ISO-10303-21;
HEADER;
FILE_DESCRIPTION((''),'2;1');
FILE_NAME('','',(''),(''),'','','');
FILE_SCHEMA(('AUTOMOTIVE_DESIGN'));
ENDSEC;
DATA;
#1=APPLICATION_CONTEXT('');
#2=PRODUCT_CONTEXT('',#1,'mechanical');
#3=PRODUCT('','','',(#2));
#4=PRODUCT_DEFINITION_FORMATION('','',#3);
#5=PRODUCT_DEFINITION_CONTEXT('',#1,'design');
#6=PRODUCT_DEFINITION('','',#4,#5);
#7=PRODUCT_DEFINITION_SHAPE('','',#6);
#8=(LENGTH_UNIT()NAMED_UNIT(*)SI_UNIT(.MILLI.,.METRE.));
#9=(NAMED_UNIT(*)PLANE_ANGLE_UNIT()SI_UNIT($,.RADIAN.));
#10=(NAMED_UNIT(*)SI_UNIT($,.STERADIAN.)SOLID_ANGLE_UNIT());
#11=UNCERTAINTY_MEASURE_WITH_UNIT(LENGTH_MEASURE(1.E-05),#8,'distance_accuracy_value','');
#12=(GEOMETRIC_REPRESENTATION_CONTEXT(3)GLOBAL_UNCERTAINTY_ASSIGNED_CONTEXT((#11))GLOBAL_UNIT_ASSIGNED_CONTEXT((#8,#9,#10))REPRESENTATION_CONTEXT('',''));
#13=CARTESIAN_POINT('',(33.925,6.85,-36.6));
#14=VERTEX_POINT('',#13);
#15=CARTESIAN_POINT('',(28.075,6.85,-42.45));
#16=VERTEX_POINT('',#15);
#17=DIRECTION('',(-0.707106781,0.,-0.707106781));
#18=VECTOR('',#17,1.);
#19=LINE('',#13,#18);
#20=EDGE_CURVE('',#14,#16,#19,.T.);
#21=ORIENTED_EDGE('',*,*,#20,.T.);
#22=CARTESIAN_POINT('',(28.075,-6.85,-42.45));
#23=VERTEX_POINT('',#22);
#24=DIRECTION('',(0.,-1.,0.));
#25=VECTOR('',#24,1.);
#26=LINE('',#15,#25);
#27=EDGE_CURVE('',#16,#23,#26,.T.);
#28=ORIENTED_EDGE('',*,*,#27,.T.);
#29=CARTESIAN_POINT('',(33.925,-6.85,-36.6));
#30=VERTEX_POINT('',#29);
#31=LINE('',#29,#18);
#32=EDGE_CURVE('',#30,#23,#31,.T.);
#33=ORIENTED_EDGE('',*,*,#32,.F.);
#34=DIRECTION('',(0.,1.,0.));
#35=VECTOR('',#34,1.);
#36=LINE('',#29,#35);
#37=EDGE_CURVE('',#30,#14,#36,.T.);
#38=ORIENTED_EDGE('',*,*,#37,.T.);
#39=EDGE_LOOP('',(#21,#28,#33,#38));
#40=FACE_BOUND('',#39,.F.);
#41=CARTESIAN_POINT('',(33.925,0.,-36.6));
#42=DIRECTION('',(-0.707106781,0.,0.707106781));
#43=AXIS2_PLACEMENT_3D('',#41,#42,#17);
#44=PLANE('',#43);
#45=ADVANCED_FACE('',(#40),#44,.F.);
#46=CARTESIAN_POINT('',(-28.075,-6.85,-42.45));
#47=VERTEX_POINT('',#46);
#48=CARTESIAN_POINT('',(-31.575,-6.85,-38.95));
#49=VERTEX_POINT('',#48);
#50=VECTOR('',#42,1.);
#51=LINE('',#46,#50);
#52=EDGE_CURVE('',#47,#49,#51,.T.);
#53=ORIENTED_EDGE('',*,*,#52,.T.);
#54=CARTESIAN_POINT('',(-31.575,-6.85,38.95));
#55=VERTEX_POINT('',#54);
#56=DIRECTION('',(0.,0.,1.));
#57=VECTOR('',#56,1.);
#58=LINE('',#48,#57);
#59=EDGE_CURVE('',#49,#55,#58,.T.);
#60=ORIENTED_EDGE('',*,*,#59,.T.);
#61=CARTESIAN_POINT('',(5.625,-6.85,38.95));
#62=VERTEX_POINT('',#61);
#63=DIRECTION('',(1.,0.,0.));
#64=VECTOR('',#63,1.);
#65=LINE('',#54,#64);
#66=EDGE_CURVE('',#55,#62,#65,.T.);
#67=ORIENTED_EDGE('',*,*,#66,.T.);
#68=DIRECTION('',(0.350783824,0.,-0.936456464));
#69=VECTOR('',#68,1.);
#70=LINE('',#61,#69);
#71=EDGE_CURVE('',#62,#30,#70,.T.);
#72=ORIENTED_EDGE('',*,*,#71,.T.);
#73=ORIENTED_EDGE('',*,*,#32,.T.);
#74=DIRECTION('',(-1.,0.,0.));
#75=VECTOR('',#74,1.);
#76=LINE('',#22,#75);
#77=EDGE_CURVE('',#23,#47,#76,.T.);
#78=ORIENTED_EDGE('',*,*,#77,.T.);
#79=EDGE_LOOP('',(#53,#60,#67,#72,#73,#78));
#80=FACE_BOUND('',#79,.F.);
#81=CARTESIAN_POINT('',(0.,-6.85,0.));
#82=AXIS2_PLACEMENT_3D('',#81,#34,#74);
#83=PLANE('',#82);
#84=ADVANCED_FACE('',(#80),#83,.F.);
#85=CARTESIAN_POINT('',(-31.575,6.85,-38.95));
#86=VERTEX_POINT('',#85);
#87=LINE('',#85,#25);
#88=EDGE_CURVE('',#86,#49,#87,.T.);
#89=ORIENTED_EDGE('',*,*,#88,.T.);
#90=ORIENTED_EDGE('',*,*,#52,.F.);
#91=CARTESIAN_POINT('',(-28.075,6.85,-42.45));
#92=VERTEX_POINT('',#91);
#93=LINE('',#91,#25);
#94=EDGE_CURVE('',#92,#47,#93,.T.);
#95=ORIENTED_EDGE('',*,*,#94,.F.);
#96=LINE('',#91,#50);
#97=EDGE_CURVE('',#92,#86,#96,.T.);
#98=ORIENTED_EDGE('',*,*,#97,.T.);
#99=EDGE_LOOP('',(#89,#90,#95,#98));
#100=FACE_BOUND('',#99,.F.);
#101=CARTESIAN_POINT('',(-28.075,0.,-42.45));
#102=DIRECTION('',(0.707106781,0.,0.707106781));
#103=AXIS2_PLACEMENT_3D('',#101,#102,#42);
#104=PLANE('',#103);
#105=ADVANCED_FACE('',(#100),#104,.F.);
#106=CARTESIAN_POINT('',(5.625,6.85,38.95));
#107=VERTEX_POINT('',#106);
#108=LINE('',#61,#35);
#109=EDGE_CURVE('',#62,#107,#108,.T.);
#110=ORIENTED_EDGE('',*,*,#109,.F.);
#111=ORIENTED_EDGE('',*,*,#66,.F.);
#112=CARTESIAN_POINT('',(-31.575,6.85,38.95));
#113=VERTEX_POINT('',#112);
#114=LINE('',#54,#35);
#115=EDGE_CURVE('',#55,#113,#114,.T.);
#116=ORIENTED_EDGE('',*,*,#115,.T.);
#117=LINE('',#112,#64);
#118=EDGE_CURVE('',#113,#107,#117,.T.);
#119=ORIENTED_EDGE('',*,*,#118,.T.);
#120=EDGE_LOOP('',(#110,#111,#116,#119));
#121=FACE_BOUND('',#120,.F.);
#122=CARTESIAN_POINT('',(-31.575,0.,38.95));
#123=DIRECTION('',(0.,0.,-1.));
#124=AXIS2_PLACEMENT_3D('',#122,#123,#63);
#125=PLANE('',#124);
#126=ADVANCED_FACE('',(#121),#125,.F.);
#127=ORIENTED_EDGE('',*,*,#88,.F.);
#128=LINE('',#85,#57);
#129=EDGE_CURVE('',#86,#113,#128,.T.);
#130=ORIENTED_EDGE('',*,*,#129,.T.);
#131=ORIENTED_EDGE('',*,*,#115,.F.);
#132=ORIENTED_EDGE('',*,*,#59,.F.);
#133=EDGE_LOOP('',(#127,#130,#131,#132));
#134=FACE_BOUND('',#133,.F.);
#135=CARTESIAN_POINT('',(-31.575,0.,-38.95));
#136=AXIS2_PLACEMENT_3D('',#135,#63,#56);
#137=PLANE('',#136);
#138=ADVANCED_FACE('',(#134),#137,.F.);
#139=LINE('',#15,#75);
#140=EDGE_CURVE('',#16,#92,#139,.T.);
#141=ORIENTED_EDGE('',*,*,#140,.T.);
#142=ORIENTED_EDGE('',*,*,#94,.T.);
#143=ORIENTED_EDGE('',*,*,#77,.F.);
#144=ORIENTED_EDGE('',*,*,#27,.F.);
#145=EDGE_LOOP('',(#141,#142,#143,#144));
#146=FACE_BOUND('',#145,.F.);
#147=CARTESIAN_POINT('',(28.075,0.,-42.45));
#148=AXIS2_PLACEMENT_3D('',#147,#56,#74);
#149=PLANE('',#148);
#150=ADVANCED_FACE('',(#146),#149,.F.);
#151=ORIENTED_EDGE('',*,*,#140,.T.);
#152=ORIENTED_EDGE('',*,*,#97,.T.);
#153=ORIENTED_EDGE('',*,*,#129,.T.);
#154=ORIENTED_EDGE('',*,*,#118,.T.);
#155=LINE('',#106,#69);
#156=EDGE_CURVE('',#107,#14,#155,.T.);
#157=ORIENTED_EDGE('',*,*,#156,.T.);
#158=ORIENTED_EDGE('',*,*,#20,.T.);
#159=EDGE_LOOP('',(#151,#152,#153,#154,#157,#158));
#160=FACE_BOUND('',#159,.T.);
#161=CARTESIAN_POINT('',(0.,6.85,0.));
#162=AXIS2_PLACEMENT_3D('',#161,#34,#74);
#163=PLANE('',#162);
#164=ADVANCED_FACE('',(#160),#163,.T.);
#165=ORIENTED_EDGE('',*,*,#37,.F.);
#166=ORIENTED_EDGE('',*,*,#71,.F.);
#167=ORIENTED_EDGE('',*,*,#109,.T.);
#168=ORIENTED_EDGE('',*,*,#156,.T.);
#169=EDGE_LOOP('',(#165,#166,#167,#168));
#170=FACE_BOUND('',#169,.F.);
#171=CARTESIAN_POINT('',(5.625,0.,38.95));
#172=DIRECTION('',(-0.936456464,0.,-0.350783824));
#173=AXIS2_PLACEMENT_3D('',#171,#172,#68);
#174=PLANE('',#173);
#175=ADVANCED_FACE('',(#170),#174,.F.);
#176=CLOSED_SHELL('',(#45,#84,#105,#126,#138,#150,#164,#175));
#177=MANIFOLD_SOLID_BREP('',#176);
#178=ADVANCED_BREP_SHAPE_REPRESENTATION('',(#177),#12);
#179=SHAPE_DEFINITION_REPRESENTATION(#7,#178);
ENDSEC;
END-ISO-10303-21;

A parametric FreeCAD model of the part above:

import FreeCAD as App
import Part
import Sketcher
Q = App.Units.Quantity


def add_polygon(sketch, points):
    """Adds a closed chain of lines whose ends are joined by coincident constraints."""
    first, n = sketch.GeometryCount, len(points)
    for a, b in zip(points, points[1:] + points[:1]):
        sketch.addGeometry(Part.LineSegment(App.Vector(*a, 0), App.Vector(*b, 0)), False)
    for i in range(n):
        sketch.addConstraint(Sketcher.Constraint("Coincident", first + i, 2, first + (i + 1) % n, 1))

doc = App.newDocument("Part")
body = doc.addObject("PartDesign::Body", "Body")

sketch1 = body.newObject("Sketcher::SketchObject", "Sketch")
sketch1.AttachmentSupport = (doc.getObject("XZ_Plane"), [""])
sketch1.MapMode = "FlatFace"
add_polygon(sketch1, [(-31.6, -39), (-31.6, 39), (5.6, 39), (33.9, -36.6), (28.1, -42.5), (-28.1, -42.5)])
sketch1.addConstraint([
    Sketcher.Constraint("Vertical", 0),
    Sketcher.Constraint("Horizontal", 1),
    Sketcher.Constraint("Horizontal", 4),
    Sketcher.Constraint("Perpendicular", 3, 5),
    Sketcher.Constraint("DistanceX", 1, 1, 1, 2, Q("37.2 mm")),
    Sketcher.Constraint("DistanceX", 0, 2, 2, 2, Q("65.5 mm")),
    Sketcher.Constraint("DistanceY", 3, 2, 1, 2, Q("81.4 mm")),
    Sketcher.Constraint("DistanceX", 0, 2, 4, 2, Q("3.5 mm")),
    Sketcher.Constraint("DistanceY", 4, 2, 5, 2, Q("3.5 mm")),
    Sketcher.Constraint("DistanceX", 0, 2, 3, 2, Q("59.65 mm")),
    Sketcher.Constraint("DistanceY", 2, 2, -1, 1, Q("36.6 mm")),
    Sketcher.Constraint("DistanceX", 0, 2, -1, 1, Q("31.575 mm")),
])
pad1 = body.newObject("PartDesign::Pad", "Pad")
pad1.Profile = sketch1
pad1.Length = 13.7
pad1.Midplane = True

doc.recompute()
